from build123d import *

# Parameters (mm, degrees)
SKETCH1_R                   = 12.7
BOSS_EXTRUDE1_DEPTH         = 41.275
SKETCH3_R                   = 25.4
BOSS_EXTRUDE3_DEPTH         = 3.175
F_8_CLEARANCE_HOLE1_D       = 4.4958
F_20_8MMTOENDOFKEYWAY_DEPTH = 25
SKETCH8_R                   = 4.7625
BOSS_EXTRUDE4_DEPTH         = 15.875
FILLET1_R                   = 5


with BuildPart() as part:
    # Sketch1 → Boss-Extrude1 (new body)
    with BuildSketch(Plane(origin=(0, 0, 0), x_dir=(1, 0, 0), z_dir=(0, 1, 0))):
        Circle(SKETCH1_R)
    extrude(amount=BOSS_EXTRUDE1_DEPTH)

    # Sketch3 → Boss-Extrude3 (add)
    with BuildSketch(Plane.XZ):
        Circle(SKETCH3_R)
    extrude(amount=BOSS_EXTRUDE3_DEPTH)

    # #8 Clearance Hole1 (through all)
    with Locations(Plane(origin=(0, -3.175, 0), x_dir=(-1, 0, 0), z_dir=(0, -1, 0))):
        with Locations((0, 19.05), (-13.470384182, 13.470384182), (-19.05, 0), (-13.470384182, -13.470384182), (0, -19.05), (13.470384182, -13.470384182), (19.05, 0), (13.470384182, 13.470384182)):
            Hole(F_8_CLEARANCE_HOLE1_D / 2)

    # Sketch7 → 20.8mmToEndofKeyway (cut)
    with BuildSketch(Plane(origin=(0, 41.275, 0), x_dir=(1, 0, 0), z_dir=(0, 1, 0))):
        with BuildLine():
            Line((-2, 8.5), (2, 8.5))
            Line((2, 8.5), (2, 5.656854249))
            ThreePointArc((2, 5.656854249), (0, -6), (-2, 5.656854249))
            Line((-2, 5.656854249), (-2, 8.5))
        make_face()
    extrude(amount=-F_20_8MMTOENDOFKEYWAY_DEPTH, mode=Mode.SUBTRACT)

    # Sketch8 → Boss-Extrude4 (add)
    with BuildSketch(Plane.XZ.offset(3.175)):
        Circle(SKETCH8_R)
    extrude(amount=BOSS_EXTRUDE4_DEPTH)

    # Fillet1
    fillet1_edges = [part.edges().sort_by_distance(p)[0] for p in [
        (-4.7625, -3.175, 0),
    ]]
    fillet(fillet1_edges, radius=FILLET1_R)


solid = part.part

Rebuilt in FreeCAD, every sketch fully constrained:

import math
import FreeCAD as App
import Part
import Sketcher

V = App.Vector
Q = App.Units.Quantity


def edges_at(feature, points):
    """Names of the edges that pass closest to the given points."""
    edges = feature.Shape.Edges
    near = lambda p: min(range(len(edges)), key=lambda i: edges[i].distToShape(Part.Vertex(*p))[0])
    return sorted({f"Edge{near(p) + 1}" for p in points})

doc = App.newDocument("Part")
body = doc.addObject("PartDesign::Body", "Body")

# Sketch on XZ plane
sketch1 = body.newObject("Sketcher::SketchObject", "Sketch")
sketch1.AttachmentSupport = (doc.getObject("XZ_Plane"), [""])
sketch1.MapMode = "FlatFace"
sketch1.addGeometry(Part.Circle(V(0, 0, 0), V(0, 0, 1), 13), False)
sketch1.addConstraint(Sketcher.Constraint("Coincident", 0, 3, -1, 1))
sketch1.addConstraint(Sketcher.Constraint("Diameter", 0, Q("1 in")))
pad1 = body.newObject("PartDesign::Pad", "Pad")
pad1.Profile = sketch1
pad1.Length = Q("1.625 in")
pad1.Reversed = True

# Sketch on XZ plane
sketch2 = body.newObject("Sketcher::SketchObject", "Sketch001")
sketch2.AttachmentSupport = (doc.getObject("XZ_Plane"), [""])
sketch2.MapMode = "FlatFace"
sketch2.addGeometry(Part.Circle(V(0, 0, 0), V(0, 0, 1), 25), False)
sketch2.addConstraint(Sketcher.Constraint("Coincident", 0, 3, -1, 1))
sketch2.addConstraint(Sketcher.Constraint("Diameter", 0, Q("2 in")))
pad2 = body.newObject("PartDesign::Pad", "Pad001")
pad2.Profile = sketch2
pad2.Length = Q("0.125 in")

# Sketch on XZ plane
sketch3 = body.newObject("Sketcher::SketchObject", "Sketch002")
sketch3.AttachmentSupport = (doc.getObject("XZ_Plane"), [""])
sketch3.MapMode = "FlatFace"
sketch3.AttachmentOffset = App.Placement(V(0, 0, 0.125 * 25.4), App.Rotation())
sketch3.addGeometry(Part.Circle(V(0, -19.1, 0), V(0, 0, 1), 2.2), False)
sketch3.addGeometry(Part.Circle(V(13.5, -13.5, 0), V(0, 0, 1), 2.2), False)
sketch3.addGeometry(Part.Circle(V(19.1, 0, 0), V(0, 0, 1), 2.2), False)
sketch3.addGeometry(Part.Circle(V(13.5, 13.5, 0), V(0, 0, 1), 2.2), False)
sketch3.addGeometry(Part.Circle(V(0, 19.1, 0), V(0, 0, 1), 2.2), False)
sketch3.addGeometry(Part.Circle(V(-13.5, 13.5, 0), V(0, 0, 1), 2.2), False)
sketch3.addGeometry(Part.Circle(V(-19.1, 0, 0), V(0, 0, 1), 2.2), False)
sketch3.addGeometry(Part.Circle(V(-13.5, -13.5, 0), V(0, 0, 1), 2.2), False)
sketch3.addConstraint(Sketcher.Constraint("Equal", 0, 1))
sketch3.addConstraint(Sketcher.Constraint("Equal", 1, 2))
sketch3.addConstraint(Sketcher.Constraint("Equal", 2, 3))
sketch3.addConstraint(Sketcher.Constraint("Equal", 3, 4))
sketch3.addConstraint(Sketcher.Constraint("Equal", 4, 5))
sketch3.addConstraint(Sketcher.Constraint("Equal", 5, 6))
sketch3.addConstraint(Sketcher.Constraint("Equal", 6, 7))
sketch3.addConstraint(Sketcher.Constraint("Symmetric", 0, 3, 4, 3, -1, 1))
sketch3.addConstraint(Sketcher.Constraint("Symmetric", 1, 3, 5, 3, -1, 1))
sketch3.addConstraint(Sketcher.Constraint("Symmetric", 2, 3, 6, 3, -1, 1))
sketch3.addConstraint(Sketcher.Constraint("Symmetric", 3, 3, 7, 3, -1, 1))
sketch3.addConstraint(Sketcher.Constraint("Symmetric", 3, 3, 5, 3, -2))
sketch3.addConstraint(Sketcher.Constraint("PointOnObject", 0, 3, -2))
sketch3.addConstraint(Sketcher.Constraint("PointOnObject", 2, 3, -1))
sketch3.addConstraint(Sketcher.Constraint("Diameter", 0, Q("0.177 in")))
sketch3.addConstraint(Sketcher.Constraint("DistanceY", 0, 3, 4, 3, Q("1.5 in")))
sketch3.addConstraint(Sketcher.Constraint("DistanceX", -1, 1, 2, 3, Q("0.75 in")))
sketch3.addConstraint(Sketcher.Constraint("DistanceY", 1, 3, 3, 3, Q("26.940768 mm")))
sketch3.addConstraint(Sketcher.Constraint("DistanceX", 5, 3, 3, 3, Q("26.940768 mm")))
doc.recompute()
hole = body.newObject("PartDesign::Hole", "Hole")
hole.Profile = sketch3
hole.ThreadType = "None"
hole.Diameter = Q("0.177 in")
hole.DepthType = "ThroughAll"

# Sketch on XZ plane
sketch4 = body.newObject("Sketcher::SketchObject", "Sketch003")
sketch4.AttachmentSupport = (doc.getObject("XZ_Plane"), [""])
sketch4.MapMode = "FlatFace"
sketch4.AttachmentOffset = App.Placement(V(0, 0, -1.625 * 25.4), App.Rotation())
sketch4.addGeometry(Part.LineSegment(V(2, -8.5, 0), V(-2, -8.5, 0)), False)
sketch4.addGeometry(Part.LineSegment(V(-2, -8.5, 0), V(-2, -5.7, 0)), False)
sketch4.addGeometry(Part.ArcOfCircle(Part.Circle(V(0, 0, 0), V(0, 0, 1), 6), math.radians(-71), math.radians(251)), False)
sketch4.addGeometry(Part.LineSegment(V(2, -5.7, 0), V(2, -8.5, 0)), False)
sketch4.addConstraint(Sketcher.Constraint("Coincident", 0, 2, 1, 1))
sketch4.addConstraint(Sketcher.Constraint("Coincident", 1, 2, 2, 2))
sketch4.addConstraint(Sketcher.Constraint("Coincident", 2, 1, 3, 1))
sketch4.addConstraint(Sketcher.Constraint("Coincident", 3, 2, 0, 1))
sketch4.addConstraint(Sketcher.Constraint("Horizontal", 0))
sketch4.addConstraint(Sketcher.Constraint("Vertical", 1))
sketch4.addConstraint(Sketcher.Constraint("Vertical", 3))
sketch4.addConstraint(Sketcher.Constraint("Coincident", 2, 3, -1, 1))
sketch4.addConstraint(Sketcher.Constraint("Horizontal", 1, 2, 2, 1))
sketch4.addConstraint(Sketcher.Constraint("Radius", 2, Q("6 mm")))
sketch4.addConstraint(Sketcher.Constraint("DistanceX", 0, 2, 0, 1, Q("4 mm")))
sketch4.addConstraint(Sketcher.Constraint("DistanceY", 0, 2, -1, 1, Q("8.5 mm")))
pocket1 = body.newObject("PartDesign::Pocket", "Pocket")
pocket1.Profile = sketch4
pocket1.Length = 25
pocket1.Reversed = True

# Sketch on XZ plane
sketch5 = body.newObject("Sketcher::SketchObject", "Sketch004")
sketch5.AttachmentSupport = (doc.getObject("XZ_Plane"), [""])
sketch5.MapMode = "FlatFace"
sketch5.AttachmentOffset = App.Placement(V(0, 0, 0.125 * 25.4), App.Rotation())
sketch5.addGeometry(Part.Circle(V(0, 0, 0), V(0, 0, 1), 4.8), False)
sketch5.addConstraint(Sketcher.Constraint("Coincident", 0, 3, -1, 1))
sketch5.addConstraint(Sketcher.Constraint("Diameter", 0, Q("0.375 in")))
pad3 = body.newObject("PartDesign::Pad", "Pad002")
pad3.Profile = sketch5
pad3.Length = Q("0.625 in")
doc.recompute()

fillet = body.newObject("PartDesign::Fillet", "Fillet")
fillet.Base = (pad3, edges_at(pad3, [(-4.763, -3.175, 0)]))
fillet.Radius = 5

doc.recompute()
